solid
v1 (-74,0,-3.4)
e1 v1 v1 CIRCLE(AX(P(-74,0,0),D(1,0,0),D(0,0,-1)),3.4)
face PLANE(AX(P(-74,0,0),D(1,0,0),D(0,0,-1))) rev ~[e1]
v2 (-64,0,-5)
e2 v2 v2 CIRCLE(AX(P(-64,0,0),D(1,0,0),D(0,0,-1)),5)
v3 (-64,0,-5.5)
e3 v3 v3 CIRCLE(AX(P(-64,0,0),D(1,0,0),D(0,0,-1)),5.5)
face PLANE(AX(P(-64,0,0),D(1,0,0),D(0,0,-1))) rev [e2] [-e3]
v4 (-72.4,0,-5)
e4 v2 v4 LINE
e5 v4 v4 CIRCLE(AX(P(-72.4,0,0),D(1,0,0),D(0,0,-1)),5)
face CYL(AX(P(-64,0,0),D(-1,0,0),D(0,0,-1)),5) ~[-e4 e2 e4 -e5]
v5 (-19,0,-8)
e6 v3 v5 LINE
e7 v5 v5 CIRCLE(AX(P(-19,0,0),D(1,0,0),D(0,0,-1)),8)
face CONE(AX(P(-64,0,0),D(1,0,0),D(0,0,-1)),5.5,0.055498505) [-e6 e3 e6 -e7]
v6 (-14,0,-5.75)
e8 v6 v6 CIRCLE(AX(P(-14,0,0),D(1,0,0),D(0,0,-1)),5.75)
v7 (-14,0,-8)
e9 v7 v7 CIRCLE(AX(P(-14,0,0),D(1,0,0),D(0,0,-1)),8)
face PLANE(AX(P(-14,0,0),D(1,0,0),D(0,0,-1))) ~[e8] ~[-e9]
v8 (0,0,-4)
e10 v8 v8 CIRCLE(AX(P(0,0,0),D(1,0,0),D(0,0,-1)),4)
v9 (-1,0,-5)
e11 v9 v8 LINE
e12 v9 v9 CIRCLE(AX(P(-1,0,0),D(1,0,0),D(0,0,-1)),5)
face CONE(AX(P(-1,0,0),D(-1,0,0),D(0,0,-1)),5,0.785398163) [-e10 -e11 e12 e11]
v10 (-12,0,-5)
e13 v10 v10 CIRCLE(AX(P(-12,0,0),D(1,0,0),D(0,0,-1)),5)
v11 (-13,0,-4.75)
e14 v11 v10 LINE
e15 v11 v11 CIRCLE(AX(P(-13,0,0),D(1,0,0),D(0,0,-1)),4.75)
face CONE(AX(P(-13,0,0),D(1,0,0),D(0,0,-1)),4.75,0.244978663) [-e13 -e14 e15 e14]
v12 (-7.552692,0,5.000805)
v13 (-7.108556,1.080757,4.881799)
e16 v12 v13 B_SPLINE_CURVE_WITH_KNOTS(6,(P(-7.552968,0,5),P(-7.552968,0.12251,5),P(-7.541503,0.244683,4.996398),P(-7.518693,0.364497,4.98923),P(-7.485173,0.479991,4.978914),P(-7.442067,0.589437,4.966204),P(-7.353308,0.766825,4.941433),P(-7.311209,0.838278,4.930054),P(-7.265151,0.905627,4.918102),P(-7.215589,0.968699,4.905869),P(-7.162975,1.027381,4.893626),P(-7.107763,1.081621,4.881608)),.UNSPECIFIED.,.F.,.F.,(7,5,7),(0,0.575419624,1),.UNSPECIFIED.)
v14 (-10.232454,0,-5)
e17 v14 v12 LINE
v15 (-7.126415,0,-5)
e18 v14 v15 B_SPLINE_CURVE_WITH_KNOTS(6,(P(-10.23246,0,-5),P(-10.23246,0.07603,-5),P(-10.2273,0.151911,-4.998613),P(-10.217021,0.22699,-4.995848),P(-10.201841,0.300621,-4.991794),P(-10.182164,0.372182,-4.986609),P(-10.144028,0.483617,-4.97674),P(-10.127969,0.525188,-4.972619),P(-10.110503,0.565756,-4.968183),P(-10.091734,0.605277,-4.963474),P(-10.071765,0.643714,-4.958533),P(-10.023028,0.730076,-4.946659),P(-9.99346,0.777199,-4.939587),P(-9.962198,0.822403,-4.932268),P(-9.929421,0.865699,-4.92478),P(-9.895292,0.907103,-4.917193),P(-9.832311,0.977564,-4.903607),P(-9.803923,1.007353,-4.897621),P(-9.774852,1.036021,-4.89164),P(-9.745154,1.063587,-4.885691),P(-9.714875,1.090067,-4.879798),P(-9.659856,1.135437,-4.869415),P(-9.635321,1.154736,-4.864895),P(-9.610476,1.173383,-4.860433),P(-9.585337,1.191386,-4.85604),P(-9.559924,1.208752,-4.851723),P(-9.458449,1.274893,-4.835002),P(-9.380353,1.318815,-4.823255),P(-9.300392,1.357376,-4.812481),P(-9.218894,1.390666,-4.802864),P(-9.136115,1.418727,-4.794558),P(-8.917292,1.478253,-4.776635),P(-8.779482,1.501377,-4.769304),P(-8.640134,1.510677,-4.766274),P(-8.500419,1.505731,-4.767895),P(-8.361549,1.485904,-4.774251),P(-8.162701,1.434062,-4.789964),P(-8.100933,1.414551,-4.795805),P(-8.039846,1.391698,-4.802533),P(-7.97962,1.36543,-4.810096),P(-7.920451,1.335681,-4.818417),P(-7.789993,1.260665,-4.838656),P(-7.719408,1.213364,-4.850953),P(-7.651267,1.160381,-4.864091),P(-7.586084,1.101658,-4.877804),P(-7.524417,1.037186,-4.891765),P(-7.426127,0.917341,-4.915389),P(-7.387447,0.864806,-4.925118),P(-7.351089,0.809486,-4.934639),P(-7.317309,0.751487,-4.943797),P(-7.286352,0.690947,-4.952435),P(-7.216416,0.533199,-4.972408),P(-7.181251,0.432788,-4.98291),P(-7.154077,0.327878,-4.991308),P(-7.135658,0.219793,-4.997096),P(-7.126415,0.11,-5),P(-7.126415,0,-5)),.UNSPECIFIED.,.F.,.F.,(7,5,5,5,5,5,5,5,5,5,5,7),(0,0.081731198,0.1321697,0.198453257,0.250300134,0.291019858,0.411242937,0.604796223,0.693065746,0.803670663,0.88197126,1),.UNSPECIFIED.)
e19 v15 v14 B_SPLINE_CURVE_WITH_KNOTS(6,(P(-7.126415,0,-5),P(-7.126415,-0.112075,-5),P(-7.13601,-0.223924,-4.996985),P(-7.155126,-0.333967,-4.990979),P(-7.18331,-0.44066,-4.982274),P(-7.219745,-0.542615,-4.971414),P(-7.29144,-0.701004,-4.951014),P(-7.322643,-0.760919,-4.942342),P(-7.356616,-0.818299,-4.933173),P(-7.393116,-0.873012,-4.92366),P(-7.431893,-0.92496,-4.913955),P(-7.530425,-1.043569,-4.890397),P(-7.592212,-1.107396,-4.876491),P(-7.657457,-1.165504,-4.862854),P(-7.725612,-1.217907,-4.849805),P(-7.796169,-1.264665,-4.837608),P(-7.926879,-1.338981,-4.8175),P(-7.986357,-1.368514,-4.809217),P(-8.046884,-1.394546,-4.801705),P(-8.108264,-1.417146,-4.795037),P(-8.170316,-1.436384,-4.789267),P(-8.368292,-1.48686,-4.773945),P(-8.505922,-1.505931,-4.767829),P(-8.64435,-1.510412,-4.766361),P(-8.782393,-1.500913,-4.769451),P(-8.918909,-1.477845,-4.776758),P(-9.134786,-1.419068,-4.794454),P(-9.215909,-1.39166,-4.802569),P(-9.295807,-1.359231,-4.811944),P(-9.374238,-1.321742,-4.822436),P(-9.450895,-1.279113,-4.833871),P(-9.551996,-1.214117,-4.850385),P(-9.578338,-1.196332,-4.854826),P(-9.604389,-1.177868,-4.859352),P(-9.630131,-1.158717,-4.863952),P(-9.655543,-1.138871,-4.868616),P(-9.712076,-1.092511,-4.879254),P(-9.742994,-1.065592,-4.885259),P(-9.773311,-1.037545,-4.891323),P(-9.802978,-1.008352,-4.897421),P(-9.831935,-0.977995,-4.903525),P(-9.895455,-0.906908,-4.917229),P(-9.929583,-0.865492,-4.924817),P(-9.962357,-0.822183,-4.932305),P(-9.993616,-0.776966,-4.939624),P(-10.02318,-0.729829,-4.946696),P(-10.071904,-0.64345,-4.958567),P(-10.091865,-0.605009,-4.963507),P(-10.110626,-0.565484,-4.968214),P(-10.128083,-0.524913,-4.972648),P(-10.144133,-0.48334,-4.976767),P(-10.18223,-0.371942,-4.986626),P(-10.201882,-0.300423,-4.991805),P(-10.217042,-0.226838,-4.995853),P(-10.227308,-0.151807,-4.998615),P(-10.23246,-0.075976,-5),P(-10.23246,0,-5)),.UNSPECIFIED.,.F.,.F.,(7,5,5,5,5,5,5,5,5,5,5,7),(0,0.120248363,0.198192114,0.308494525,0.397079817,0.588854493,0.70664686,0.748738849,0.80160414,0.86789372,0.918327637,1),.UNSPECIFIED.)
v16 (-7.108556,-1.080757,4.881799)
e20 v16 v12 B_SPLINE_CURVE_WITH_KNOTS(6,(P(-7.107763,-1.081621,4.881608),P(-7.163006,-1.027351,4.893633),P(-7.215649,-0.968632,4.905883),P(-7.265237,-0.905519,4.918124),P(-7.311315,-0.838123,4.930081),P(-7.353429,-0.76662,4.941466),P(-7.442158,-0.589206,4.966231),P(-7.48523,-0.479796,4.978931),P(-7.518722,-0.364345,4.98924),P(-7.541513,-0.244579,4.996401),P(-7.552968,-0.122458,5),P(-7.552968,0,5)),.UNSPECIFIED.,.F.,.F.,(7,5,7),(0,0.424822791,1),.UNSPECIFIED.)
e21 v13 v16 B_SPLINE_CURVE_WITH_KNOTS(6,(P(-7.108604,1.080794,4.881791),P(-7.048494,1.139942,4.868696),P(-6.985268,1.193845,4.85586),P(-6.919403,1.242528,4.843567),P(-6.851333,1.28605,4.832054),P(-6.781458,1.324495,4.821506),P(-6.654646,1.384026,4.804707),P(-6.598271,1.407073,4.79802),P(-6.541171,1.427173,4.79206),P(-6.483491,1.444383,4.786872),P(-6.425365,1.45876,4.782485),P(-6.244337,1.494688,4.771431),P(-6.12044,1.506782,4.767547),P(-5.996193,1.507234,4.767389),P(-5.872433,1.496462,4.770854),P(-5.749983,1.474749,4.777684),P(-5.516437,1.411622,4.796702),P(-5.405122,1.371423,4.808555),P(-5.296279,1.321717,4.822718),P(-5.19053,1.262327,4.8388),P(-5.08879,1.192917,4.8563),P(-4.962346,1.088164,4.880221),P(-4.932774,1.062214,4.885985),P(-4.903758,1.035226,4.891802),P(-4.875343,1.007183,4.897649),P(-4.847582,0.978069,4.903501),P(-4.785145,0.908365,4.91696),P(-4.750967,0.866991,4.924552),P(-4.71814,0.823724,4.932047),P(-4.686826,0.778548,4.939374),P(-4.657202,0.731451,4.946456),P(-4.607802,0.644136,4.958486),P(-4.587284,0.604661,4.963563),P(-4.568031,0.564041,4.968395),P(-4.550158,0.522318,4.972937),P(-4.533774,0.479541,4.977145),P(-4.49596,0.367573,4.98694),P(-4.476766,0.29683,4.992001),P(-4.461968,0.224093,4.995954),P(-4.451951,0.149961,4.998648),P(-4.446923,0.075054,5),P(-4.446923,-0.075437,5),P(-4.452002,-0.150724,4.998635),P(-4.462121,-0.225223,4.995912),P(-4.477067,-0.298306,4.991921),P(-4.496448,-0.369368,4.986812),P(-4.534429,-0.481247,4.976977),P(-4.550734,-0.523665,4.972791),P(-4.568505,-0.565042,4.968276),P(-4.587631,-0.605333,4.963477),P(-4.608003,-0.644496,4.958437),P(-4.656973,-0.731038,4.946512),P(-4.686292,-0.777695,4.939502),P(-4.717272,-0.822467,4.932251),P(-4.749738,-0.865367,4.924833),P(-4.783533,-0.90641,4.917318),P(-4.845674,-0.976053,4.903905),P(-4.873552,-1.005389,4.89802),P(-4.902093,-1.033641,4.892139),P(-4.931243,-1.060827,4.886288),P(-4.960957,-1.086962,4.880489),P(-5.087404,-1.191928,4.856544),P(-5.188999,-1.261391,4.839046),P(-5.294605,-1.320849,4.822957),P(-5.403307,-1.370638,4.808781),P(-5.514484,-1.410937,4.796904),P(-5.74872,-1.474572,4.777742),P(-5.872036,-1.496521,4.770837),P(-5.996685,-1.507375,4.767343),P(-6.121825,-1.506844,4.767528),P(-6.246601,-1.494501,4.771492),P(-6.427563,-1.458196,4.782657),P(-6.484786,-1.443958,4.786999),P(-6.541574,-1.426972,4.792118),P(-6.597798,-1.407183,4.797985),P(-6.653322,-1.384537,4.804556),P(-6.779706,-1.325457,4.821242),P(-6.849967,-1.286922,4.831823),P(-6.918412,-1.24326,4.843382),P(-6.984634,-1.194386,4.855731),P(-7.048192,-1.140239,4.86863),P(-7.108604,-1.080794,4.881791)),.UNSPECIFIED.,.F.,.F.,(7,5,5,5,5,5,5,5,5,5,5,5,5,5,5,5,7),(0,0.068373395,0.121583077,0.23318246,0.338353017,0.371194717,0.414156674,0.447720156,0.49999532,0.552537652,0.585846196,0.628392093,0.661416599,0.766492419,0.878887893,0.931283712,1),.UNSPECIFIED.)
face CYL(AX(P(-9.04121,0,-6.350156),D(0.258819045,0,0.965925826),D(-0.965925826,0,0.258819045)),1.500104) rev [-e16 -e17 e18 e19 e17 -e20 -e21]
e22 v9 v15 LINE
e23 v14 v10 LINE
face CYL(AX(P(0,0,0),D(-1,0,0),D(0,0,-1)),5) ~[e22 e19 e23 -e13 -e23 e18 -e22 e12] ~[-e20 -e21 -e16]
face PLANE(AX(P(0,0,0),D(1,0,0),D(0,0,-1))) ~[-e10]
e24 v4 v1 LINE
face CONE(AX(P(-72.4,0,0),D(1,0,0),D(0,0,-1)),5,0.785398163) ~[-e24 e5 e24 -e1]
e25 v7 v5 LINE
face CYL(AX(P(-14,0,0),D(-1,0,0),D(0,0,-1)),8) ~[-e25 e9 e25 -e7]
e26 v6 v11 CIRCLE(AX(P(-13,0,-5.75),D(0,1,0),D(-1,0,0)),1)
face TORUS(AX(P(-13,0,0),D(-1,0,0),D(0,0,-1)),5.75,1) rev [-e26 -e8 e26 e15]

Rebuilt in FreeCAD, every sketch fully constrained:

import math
import FreeCAD as App
import Part
import Sketcher

V = App.Vector
Q = App.Units.Quantity


def edges_at(feature, points):
    """Names of the edges that pass closest to the given points."""
    edges = feature.Shape.Edges
    near = lambda p: min(range(len(edges)), key=lambda i: edges[i].distToShape(Part.Vertex(*p))[0])
    return sorted({f"Edge{near(p) + 1}" for p in points})


def add_polygon(sketch, points):
    """Adds a closed chain of lines whose ends are joined by coincident constraints."""
    first, n = sketch.GeometryCount, len(points)
    for a, b in zip(points, points[1:] + points[:1]):
        sketch.addGeometry(Part.LineSegment(App.Vector(*a, 0), App.Vector(*b, 0)), False)
    for i in range(n):
        sketch.addConstraint(Sketcher.Constraint("Coincident", first + i, 2, first + (i + 1) % n, 1))

doc = App.newDocument("Part")
params = doc.addObject("Spreadsheet::Sheet", "Params")
for row, (alias, value) in enumerate([
    ("sketch1_radius", "1 mm"),
    ("sketch1_width", "12 mm"),
    ("sketch1_width2", "5 mm"),
    ("sketch1_width3", "10 mm"),
    ("sketch1_height", "0.5 mm"),
    ("revolution_angle", "360 deg"),
    ("sketch2_length", "1.5 mm"),
    ("groove_angle", "360 deg"),
    ("chamfer_size", "1 mm"),
    ("chamfer2_size", "1.6 mm"),
], start=1):
    params.set(f"A{row}", alias)
    params.set(f"B{row}", "=" + value)
    params.setAlias(f"B{row}", alias)

body = doc.addObject("PartDesign::Body", "Body")

# Sketch on XZ plane
sketch1 = doc.addObject("Sketcher::SketchObject", "Sketch")
body.addObject(sketch1)
sketch1.AttachmentSupport = (doc.XZ_Plane, [""])
sketch1.MapMode = "FlatFace"
sketch1.addGeometry([
    Part.LineSegment(V(0, 0, 0), V(0, -5, 0)),  # 0
    Part.LineSegment(V(0, -5, 0), V(-12, -5, 0)),  # 1
    Part.LineSegment(V(-12, -5, 0), V(-13, -4.8, 0)),  # 2
    Part.ArcOfCircle(Part.Circle(V(-13, -5.8, 0), V(0, 0, 1), 1), math.radians(90), math.radians(180)),  # 3
    Part.LineSegment(V(-14, -5.8, 0), V(-14, -8, 0)),  # 4
    Part.LineSegment(V(-14, -8, 0), V(-19, -8, 0)),  # 5
    Part.LineSegment(V(-19, -8, 0), V(-64, -5.5, 0)),  # 6
    Part.LineSegment(V(-64, -5.5, 0), V(-64, -5, 0)),  # 7
    Part.LineSegment(V(-64, -5, 0), V(-74, -5, 0)),  # 8
    Part.LineSegment(V(-74, -5, 0), V(-74, 0, 0)),  # 9
    Part.LineSegment(V(-74, 0, 0), V(0, 0, 0)),  # 10
], False)
sketch1.addConstraint([
    Sketcher.Constraint("Coincident", 0, 2, 1, 1),
    Sketcher.Constraint("Coincident", 1, 2, 2, 1),
    Sketcher.Constraint("Coincident", 2, 2, 3, 1),
    Sketcher.Constraint("Tangent", 3, 2, 4, 1),
    Sketcher.Constraint("Coincident", 4, 2, 5, 1),
    Sketcher.Constraint("Coincident", 5, 2, 6, 1),
    Sketcher.Constraint("Coincident", 6, 2, 7, 1),
    Sketcher.Constraint("Coincident", 7, 2, 8, 1),
    Sketcher.Constraint("Coincident", 8, 2, 9, 1),
    Sketcher.Constraint("Coincident", 9, 2, 10, 1),
    Sketcher.Constraint("Coincident", 10, 2, 0, 1),
    Sketcher.Constraint("Vertical", 0),
    Sketcher.Constraint("Horizontal", 1),
    Sketcher.Constraint("Vertical", 4),
    Sketcher.Constraint("Horizontal", 5),
    Sketcher.Constraint("Vertical", 7),
    Sketcher.Constraint("Horizontal", 8),
    Sketcher.Constraint("Vertical", 9),
    Sketcher.Constraint("Horizontal", 10),
    Sketcher.Constraint("Coincident", 10, 2, -1, 1),
    Sketcher.Constraint("Horizontal", 1, 2, 7, 2),
    Sketcher.Constraint("Vertical", 3, 3, 2, 2),
    Sketcher.Constraint("Equal", 5, 0),
    Sketcher.Constraint("Radius", 3, Q("1 mm")),
    Sketcher.Constraint("DistanceX", 1, 2, 1, 1, Q("12 mm")),
    Sketcher.Constraint("DistanceX", 5, 2, 5, 1, Q("5 mm")),
    Sketcher.Constraint("DistanceX", 8, 2, 8, 1, Q("10 mm")),
    Sketcher.Constraint("DistanceY", 7, 1, 7, 2, Q("0.5 mm")),
    Sketcher.Constraint("DistanceX", 3, 3, 1, 2, Q("1 mm")),
    Sketcher.Constraint("DistanceX", 6, 2, 5, 2, Q("45 mm")),
    Sketcher.Constraint("DistanceY", 4, 2, -1, 1, Q("8 mm")),
    Sketcher.Constraint("DistanceY", 4, 2, 4, 1, Q("2.25 mm")),
])
sketch1.setExpression("Constraints[23]", "Params.sketch1_radius")
sketch1.setExpression("Constraints[24]", "Params.sketch1_width")
sketch1.setExpression("Constraints[25]", "Params.sketch1_width2")
sketch1.setExpression("Constraints[26]", "Params.sketch1_width3")
sketch1.setExpression("Constraints[27]", "Params.sketch1_height")
revolution = doc.addObject("PartDesign::Revolution", "Revolution")
body.addObject(revolution)
revolution.Profile = sketch1
revolution.ReferenceAxis = (sketch1, ["H_Axis"])
revolution.setExpression("Angle", "Params.revolution_angle")

# Sketch on XZ plane
sketch2 = doc.addObject("Sketcher::SketchObject", "Sketch001")
body.addObject(sketch2)
sketch2.AttachmentSupport = (doc.XZ_Plane, [""])
sketch2.MapMode = "FlatFace"
add_polygon(sketch2, [(-10.5, -6), (-6.7, 8.3), (-5.2, 8), (-6, 5), (-9, -6.4)])  # lines 0-4
sketch2.addGeometry(Part.LineSegment(V(-5.2, 8, 0), V(-9, -6.4, 0)), True)  # axis
sketch2.addConstraint([
    Sketcher.Constraint("Coincident", 5, 1, 1, 2),
    Sketcher.Constraint("Coincident", 5, 2, 3, 2),
    Sketcher.Constraint("Perpendicular", 0, 1),
    Sketcher.Constraint("Perpendicular", 1, 2),
    Sketcher.Constraint("Parallel", 2, 3),
    Sketcher.Constraint("Perpendicular", 3, 4),
    Sketcher.Constraint("Angle", 0, Q("74.9997 deg")),
    Sketcher.Constraint("Distance", 1, Q("1.5 mm")),
    Sketcher.Constraint("DistanceX", 2, 2, -1, 1, Q("6 mm")),
    Sketcher.Constraint("DistanceY", -1, 1, 2, 2, Q("5 mm")),
    Sketcher.Constraint("DistanceY", 3, 2, -1, 1, Q("6.35 mm")),
    Sketcher.Constraint("Distance", 2, Q("3.061 mm")),
])
sketch2.setExpression("Constraints[12]", "Params.sketch2_length")
groove = doc.addObject("PartDesign::Groove", "Groove")
body.addObject(groove)
groove.Profile = sketch2
groove.ReferenceAxis = (sketch2, ["Axis0"])
groove.setExpression("Angle", "Params.groove_angle")
doc.recompute()

chamfer = doc.addObject("PartDesign::Chamfer", "Chamfer")
body.addObject(chamfer)
chamfer.Base = (groove, edges_at(groove, [(0, 0, 5)]))
chamfer.setExpression("Size", "Params.chamfer_size")
doc.recompute()

chamfer2 = doc.addObject("PartDesign::Chamfer", "Chamfer001")
body.addObject(chamfer2)
chamfer2.Base = (chamfer, edges_at(chamfer, [(-74, 0, 5)]))
chamfer2.setExpression("Size", "Params.chamfer2_size")

doc.recompute()
